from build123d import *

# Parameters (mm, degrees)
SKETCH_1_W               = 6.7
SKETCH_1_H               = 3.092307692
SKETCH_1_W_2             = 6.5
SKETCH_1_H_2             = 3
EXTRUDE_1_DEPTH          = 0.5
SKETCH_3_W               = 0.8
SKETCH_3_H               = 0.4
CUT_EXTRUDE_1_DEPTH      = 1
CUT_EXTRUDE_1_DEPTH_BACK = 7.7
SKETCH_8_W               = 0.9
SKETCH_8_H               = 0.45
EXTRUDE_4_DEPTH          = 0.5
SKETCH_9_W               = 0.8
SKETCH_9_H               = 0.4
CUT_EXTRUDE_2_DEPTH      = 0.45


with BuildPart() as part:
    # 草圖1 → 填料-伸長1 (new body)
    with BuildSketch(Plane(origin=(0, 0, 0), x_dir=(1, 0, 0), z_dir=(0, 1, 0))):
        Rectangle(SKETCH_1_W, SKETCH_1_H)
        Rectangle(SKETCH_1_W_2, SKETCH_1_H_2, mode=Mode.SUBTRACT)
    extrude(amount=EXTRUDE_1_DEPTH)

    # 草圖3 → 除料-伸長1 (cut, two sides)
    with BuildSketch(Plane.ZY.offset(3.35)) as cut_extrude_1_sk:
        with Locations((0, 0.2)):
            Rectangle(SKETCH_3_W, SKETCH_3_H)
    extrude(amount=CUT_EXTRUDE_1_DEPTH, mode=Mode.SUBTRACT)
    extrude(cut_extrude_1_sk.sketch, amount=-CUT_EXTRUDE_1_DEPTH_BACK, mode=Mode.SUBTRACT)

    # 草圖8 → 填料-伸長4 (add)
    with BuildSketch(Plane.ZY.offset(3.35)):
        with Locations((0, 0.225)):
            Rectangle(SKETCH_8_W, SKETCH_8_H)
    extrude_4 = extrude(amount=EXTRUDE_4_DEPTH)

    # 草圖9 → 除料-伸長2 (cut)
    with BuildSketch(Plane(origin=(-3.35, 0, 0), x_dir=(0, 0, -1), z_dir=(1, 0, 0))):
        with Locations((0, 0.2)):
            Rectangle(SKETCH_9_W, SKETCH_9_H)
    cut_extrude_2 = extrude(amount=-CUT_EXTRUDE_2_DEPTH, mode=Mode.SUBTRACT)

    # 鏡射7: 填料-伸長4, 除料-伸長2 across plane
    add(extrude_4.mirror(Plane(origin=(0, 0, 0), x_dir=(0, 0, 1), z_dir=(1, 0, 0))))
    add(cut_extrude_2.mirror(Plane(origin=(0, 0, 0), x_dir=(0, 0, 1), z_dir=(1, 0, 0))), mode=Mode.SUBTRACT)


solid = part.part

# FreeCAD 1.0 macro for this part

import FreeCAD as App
import Part
import Sketcher

V = App.Vector
Q = App.Units.Quantity

doc = App.newDocument("Part")
body = doc.addObject("PartDesign::Body", "Body")

sketch1 = body.newObject("Sketcher::SketchObject", "Sketch")
sketch1.AttachmentSupport = (doc.getObject("XZ_Plane"), [""])
sketch1.MapMode = "FlatFace"
sketch1.addGeometry([
    Part.LineSegment(V(-3.35, -1.546154, 0), V(-3.35, 1.546154, 0)),
    Part.LineSegment(V(-3.35, 1.546154, 0), V(3.35, 1.546154, 0)),
    Part.LineSegment(V(3.35, 1.546154, 0), V(3.35, -1.546154, 0)),
    Part.LineSegment(V(3.35, -1.546154, 0), V(-3.35, -1.546154, 0)),
    Part.LineSegment(V(3.25, 1.5, 0), V(-3.25, 1.5, 0)),
    Part.LineSegment(V(-3.25, 1.5, 0), V(-3.25, -1.5, 0)),
    Part.LineSegment(V(-3.25, -1.5, 0), V(3.25, -1.5, 0)),
    Part.LineSegment(V(3.25, -1.5, 0), V(3.25, 1.5, 0)),
], False)
sketch1.addConstraint([
    Sketcher.Constraint("Coincident", 0, 2, 1, 1),
    Sketcher.Constraint("Coincident", 1, 2, 2, 1),
    Sketcher.Constraint("Coincident", 2, 2, 3, 1),
    Sketcher.Constraint("Coincident", 3, 2, 0, 1),
    Sketcher.Constraint("Coincident", 4, 2, 5, 1),
    Sketcher.Constraint("Coincident", 5, 2, 6, 1),
    Sketcher.Constraint("Coincident", 6, 2, 7, 1),
    Sketcher.Constraint("Coincident", 7, 2, 4, 1),
    Sketcher.Constraint("Vertical", 0),
    Sketcher.Constraint("Horizontal", 1),
    Sketcher.Constraint("Vertical", 2),
    Sketcher.Constraint("Horizontal", 3),
    Sketcher.Constraint("Horizontal", 4),
    Sketcher.Constraint("Vertical", 5),
    Sketcher.Constraint("Horizontal", 6),
    Sketcher.Constraint("Vertical", 7),
    Sketcher.Constraint("Symmetric", 0, 2, 2, 2, -1, 1),
    Sketcher.Constraint("Symmetric", 4, 2, 6, 2, -1, 1),
    Sketcher.Constraint("DistanceY", 5, 2, 5, 1, Q("3 mm")),
    Sketcher.Constraint("DistanceX", 1, 1, 1, 2, Q("6.7 mm")),
    Sketcher.Constraint("DistanceX", 4, 2, 4, 1, Q("6.5 mm")),
    Sketcher.Constraint("DistanceY", 0, 1, 0, 2, Q("3.092308 mm")),
])
pad1 = body.newObject("PartDesign::Pad", "Pad")
pad1.Profile = sketch1
pad1.Length = 0.5
pad1.Reversed = True

sketch2 = body.newObject("Sketcher::SketchObject", "Sketch001")
sketch2.AttachmentSupport = (doc.getObject("YZ_Plane"), [""])
sketch2.MapMode = "FlatFace"
sketch2.AttachmentOffset = App.Placement(V(0, 0, -3.35), App.Rotation())
sketch2.addGeometry([
    Part.LineSegment(V(0.4, -0.4, 0), V(0, -0.4, 0)),
    Part.LineSegment(V(0, -0.4, 0), V(0, 0.4, 0)),
    Part.LineSegment(V(0, 0.4, 0), V(0.4, 0.4, 0)),
    Part.LineSegment(V(0.4, 0.4, 0), V(0.4, -0.4, 0)),
], False)
sketch2.addConstraint([
    Sketcher.Constraint("Coincident", 0, 2, 1, 1),
    Sketcher.Constraint("Coincident", 1, 2, 2, 1),
    Sketcher.Constraint("Coincident", 2, 2, 3, 1),
    Sketcher.Constraint("Coincident", 3, 2, 0, 1),
    Sketcher.Constraint("Horizontal", 0),
    Sketcher.Constraint("Vertical", 1),
    Sketcher.Constraint("Horizontal", 2),
    Sketcher.Constraint("Vertical", 3),
    Sketcher.Constraint("Symmetric", 0, 2, 1, 2, -1, 1),
    Sketcher.Constraint("DistanceX", 0, 2, 0, 1, Q("0.4 mm")),
    Sketcher.Constraint("DistanceY", 1, 1, 1, 2, Q("0.8 mm")),
])
pocket1 = body.newObject("PartDesign::Pocket", "Pocket")
pocket1.Profile = sketch2
pocket1.Type = "ThroughAll"
pocket1.Midplane = True

sketch3 = body.newObject("Sketcher::SketchObject", "Sketch002")
sketch3.AttachmentSupport = (doc.getObject("YZ_Plane"), [""])
sketch3.MapMode = "FlatFace"
sketch3.AttachmentOffset = App.Placement(V(0, 0, -3.35), App.Rotation())
sketch3.addGeometry([
    Part.LineSegment(V(0.45, -0.45, 0), V(0, -0.45, 0)),
    Part.LineSegment(V(0, -0.45, 0), V(0, 0.45, 0)),
    Part.LineSegment(V(0, 0.45, 0), V(0.45, 0.45, 0)),
    Part.LineSegment(V(0.45, 0.45, 0), V(0.45, -0.45, 0)),
], False)
sketch3.addConstraint([
    Sketcher.Constraint("Coincident", 0, 2, 1, 1),
    Sketcher.Constraint("Coincident", 1, 2, 2, 1),
    Sketcher.Constraint("Coincident", 2, 2, 3, 1),
    Sketcher.Constraint("Coincident", 3, 2, 0, 1),
    Sketcher.Constraint("Horizontal", 0),
    Sketcher.Constraint("Vertical", 1),
    Sketcher.Constraint("Horizontal", 2),
    Sketcher.Constraint("Vertical", 3),
    Sketcher.Constraint("Symmetric", 0, 2, 1, 2, -1, 1),
    Sketcher.Constraint("DistanceY", 1, 1, 1, 2, Q("0.9 mm")),
    Sketcher.Constraint("DistanceX", 0, 2, 0, 1, Q("0.45 mm")),
])
pad2 = body.newObject("PartDesign::Pad", "Pad001")
pad2.Profile = sketch3
pad2.Length = 0.5
pad2.Reversed = True

sketch4 = body.newObject("Sketcher::SketchObject", "Sketch003")
sketch4.AttachmentSupport = (doc.getObject("YZ_Plane"), [""])
sketch4.MapMode = "FlatFace"
sketch4.AttachmentOffset = App.Placement(V(0, 0, -3.35), App.Rotation())
sketch4.addGeometry([
    Part.LineSegment(V(0.4, 0.4, 0), V(0, 0.4, 0)),
    Part.LineSegment(V(0, 0.4, 0), V(0, -0.4, 0)),
    Part.LineSegment(V(0, -0.4, 0), V(0.4, -0.4, 0)),
    Part.LineSegment(V(0.4, -0.4, 0), V(0.4, 0.4, 0)),
], False)
sketch4.addConstraint([
    Sketcher.Constraint("Coincident", 0, 2, 1, 1),
    Sketcher.Constraint("Coincident", 1, 2, 2, 1),
    Sketcher.Constraint("Coincident", 2, 2, 3, 1),
    Sketcher.Constraint("Coincident", 3, 2, 0, 1),
    Sketcher.Constraint("Horizontal", 0),
    Sketcher.Constraint("Vertical", 1),
    Sketcher.Constraint("Horizontal", 2),
    Sketcher.Constraint("Vertical", 3),
    Sketcher.Constraint("Symmetric", 0, 2, 1, 2, -1, 1),
    Sketcher.Constraint("DistanceX", 0, 2, 0, 1, Q("0.4 mm")),
    Sketcher.Constraint("DistanceY", 1, 2, 1, 1, Q("0.8 mm")),
])
pocket2 = body.newObject("PartDesign::Pocket", "Pocket001")
pocket2.Profile = sketch4
pocket2.Length = 0.45
doc.recompute()

mirrored = body.newObject("PartDesign::Mirrored", "Mirrored")
mirrored.Originals = [pad2, pocket2]
mirrored.MirrorPlane = (doc.getObject("YZ_Plane"), [""])
body.Tip = mirrored

doc.recompute()
